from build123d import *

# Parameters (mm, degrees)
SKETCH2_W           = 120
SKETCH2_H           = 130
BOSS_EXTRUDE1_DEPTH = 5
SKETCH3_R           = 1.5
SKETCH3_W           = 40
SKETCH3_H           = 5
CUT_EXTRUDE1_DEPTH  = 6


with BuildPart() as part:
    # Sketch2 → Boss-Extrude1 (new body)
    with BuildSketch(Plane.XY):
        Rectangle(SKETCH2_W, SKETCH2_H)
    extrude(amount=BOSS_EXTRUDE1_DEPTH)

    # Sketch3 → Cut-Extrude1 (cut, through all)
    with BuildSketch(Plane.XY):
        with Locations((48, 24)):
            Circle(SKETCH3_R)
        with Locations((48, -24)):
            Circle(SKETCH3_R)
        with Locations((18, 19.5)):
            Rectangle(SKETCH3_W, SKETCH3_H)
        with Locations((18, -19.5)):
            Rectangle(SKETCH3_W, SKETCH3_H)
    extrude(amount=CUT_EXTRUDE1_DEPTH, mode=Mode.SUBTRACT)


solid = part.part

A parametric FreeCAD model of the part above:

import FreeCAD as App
import Part
import Sketcher
from FreeCAD import Vector


def add_polygon(sketch, points):
    """Adds a closed chain of lines whose ends are joined by coincident constraints."""
    first, n = sketch.GeometryCount, len(points)
    for a, b in zip(points, points[1:] + points[:1]):
        sketch.addGeometry(Part.LineSegment(App.Vector(*a, 0), App.Vector(*b, 0)), False)
    for i in range(n):
        sketch.addConstraint(Sketcher.Constraint("Coincident", first + i, 2, first + (i + 1) % n, 1))

doc = App.newDocument("Part")
body = doc.addObject("PartDesign::Body", "Body")

# Sketch on XY plane
sketch1 = doc.addObject("Sketcher::SketchObject", "Sketch")
body.addObject(sketch1)
sketch1.AttachmentSupport = (doc.XY_Plane, [""])
sketch1.MapMode = "FlatFace"
add_polygon(sketch1, [(-60, 65), (-60, -65), (60, -65), (60, 65)])  # lines 0-3
sketch1.addConstraint([
    Sketcher.Constraint("Vertical", 0),
    Sketcher.Constraint("Horizontal", 1),
    Sketcher.Constraint("Vertical", 2),
    Sketcher.Constraint("Horizontal", 3),
    Sketcher.Constraint("Symmetric", 0, 2, 2, 2, -1, 1),
    Sketcher.Constraint("DistanceX", 1, 1, 1, 2, 120.0),
    Sketcher.Constraint("DistanceY", 0, 2, 0, 1, 130.0),
])
pad1 = doc.addObject("PartDesign::Pad", "Pad")
body.addObject(pad1)
pad1.Profile = sketch1
pad1.Length = 5

# Sketch on XY plane
sketch2 = doc.addObject("Sketcher::SketchObject", "Sketch001")
body.addObject(sketch2)
sketch2.AttachmentSupport = (doc.XY_Plane, [""])
sketch2.MapMode = "FlatFace"
sketch2.addGeometry(Part.Circle(Vector(48, 24, 0), Vector(0, 0, 1), 1.5), False)  # 0
sketch2.addGeometry(Part.Circle(Vector(48, -24, 0), Vector(0, 0, 1), 1.5), False)  # 1
add_polygon(sketch2, [(-2, 22), (-2, 17), (38, 17), (38, 22)])  # lines 2-5
add_polygon(sketch2, [(-2, -17), (-2, -22), (38, -22), (38, -17)])  # lines 6-9
sketch2.addConstraint([
    Sketcher.Constraint("Vertical", 2),
    Sketcher.Constraint("Horizontal", 3),
    Sketcher.Constraint("Vertical", 4),
    Sketcher.Constraint("Horizontal", 5),
    Sketcher.Constraint("Vertical", 6),
    Sketcher.Constraint("Horizontal", 7),
    Sketcher.Constraint("Vertical", 8),
    Sketcher.Constraint("Horizontal", 9),
    Sketcher.Constraint("Equal", 0, 1),
    Sketcher.Constraint("Symmetric", 0, 3, 1, 3, -1),
    Sketcher.Constraint("Symmetric", 5, 2, 6, 2, -1),
    Sketcher.Constraint("Symmetric", 3, 2, 8, 2, -1),
    Sketcher.Constraint("Diameter", 0, 3.0),
    Sketcher.Constraint("DistanceX", 3, 1, 3, 2, 40.0),
    Sketcher.Constraint("DistanceY", 2, 2, 2, 1, 5.0),
    Sketcher.Constraint("DistanceX", -1, 1, 0, 3, 48.0),
    Sketcher.Constraint("DistanceY", -1, 1, 0, 3, 24.0),
    Sketcher.Constraint("DistanceX", 2, 2, -1, 1, 2.0),
    Sketcher.Constraint("DistanceY", -1, 1, 2, 2, 17.0),
])
pocket1 = doc.addObject("PartDesign::Pocket", "Pocket")
body.addObject(pocket1)
pocket1.Profile = sketch2
pocket1.Type = "ThroughAll"
pocket1.Reversed = True

doc.recompute()
